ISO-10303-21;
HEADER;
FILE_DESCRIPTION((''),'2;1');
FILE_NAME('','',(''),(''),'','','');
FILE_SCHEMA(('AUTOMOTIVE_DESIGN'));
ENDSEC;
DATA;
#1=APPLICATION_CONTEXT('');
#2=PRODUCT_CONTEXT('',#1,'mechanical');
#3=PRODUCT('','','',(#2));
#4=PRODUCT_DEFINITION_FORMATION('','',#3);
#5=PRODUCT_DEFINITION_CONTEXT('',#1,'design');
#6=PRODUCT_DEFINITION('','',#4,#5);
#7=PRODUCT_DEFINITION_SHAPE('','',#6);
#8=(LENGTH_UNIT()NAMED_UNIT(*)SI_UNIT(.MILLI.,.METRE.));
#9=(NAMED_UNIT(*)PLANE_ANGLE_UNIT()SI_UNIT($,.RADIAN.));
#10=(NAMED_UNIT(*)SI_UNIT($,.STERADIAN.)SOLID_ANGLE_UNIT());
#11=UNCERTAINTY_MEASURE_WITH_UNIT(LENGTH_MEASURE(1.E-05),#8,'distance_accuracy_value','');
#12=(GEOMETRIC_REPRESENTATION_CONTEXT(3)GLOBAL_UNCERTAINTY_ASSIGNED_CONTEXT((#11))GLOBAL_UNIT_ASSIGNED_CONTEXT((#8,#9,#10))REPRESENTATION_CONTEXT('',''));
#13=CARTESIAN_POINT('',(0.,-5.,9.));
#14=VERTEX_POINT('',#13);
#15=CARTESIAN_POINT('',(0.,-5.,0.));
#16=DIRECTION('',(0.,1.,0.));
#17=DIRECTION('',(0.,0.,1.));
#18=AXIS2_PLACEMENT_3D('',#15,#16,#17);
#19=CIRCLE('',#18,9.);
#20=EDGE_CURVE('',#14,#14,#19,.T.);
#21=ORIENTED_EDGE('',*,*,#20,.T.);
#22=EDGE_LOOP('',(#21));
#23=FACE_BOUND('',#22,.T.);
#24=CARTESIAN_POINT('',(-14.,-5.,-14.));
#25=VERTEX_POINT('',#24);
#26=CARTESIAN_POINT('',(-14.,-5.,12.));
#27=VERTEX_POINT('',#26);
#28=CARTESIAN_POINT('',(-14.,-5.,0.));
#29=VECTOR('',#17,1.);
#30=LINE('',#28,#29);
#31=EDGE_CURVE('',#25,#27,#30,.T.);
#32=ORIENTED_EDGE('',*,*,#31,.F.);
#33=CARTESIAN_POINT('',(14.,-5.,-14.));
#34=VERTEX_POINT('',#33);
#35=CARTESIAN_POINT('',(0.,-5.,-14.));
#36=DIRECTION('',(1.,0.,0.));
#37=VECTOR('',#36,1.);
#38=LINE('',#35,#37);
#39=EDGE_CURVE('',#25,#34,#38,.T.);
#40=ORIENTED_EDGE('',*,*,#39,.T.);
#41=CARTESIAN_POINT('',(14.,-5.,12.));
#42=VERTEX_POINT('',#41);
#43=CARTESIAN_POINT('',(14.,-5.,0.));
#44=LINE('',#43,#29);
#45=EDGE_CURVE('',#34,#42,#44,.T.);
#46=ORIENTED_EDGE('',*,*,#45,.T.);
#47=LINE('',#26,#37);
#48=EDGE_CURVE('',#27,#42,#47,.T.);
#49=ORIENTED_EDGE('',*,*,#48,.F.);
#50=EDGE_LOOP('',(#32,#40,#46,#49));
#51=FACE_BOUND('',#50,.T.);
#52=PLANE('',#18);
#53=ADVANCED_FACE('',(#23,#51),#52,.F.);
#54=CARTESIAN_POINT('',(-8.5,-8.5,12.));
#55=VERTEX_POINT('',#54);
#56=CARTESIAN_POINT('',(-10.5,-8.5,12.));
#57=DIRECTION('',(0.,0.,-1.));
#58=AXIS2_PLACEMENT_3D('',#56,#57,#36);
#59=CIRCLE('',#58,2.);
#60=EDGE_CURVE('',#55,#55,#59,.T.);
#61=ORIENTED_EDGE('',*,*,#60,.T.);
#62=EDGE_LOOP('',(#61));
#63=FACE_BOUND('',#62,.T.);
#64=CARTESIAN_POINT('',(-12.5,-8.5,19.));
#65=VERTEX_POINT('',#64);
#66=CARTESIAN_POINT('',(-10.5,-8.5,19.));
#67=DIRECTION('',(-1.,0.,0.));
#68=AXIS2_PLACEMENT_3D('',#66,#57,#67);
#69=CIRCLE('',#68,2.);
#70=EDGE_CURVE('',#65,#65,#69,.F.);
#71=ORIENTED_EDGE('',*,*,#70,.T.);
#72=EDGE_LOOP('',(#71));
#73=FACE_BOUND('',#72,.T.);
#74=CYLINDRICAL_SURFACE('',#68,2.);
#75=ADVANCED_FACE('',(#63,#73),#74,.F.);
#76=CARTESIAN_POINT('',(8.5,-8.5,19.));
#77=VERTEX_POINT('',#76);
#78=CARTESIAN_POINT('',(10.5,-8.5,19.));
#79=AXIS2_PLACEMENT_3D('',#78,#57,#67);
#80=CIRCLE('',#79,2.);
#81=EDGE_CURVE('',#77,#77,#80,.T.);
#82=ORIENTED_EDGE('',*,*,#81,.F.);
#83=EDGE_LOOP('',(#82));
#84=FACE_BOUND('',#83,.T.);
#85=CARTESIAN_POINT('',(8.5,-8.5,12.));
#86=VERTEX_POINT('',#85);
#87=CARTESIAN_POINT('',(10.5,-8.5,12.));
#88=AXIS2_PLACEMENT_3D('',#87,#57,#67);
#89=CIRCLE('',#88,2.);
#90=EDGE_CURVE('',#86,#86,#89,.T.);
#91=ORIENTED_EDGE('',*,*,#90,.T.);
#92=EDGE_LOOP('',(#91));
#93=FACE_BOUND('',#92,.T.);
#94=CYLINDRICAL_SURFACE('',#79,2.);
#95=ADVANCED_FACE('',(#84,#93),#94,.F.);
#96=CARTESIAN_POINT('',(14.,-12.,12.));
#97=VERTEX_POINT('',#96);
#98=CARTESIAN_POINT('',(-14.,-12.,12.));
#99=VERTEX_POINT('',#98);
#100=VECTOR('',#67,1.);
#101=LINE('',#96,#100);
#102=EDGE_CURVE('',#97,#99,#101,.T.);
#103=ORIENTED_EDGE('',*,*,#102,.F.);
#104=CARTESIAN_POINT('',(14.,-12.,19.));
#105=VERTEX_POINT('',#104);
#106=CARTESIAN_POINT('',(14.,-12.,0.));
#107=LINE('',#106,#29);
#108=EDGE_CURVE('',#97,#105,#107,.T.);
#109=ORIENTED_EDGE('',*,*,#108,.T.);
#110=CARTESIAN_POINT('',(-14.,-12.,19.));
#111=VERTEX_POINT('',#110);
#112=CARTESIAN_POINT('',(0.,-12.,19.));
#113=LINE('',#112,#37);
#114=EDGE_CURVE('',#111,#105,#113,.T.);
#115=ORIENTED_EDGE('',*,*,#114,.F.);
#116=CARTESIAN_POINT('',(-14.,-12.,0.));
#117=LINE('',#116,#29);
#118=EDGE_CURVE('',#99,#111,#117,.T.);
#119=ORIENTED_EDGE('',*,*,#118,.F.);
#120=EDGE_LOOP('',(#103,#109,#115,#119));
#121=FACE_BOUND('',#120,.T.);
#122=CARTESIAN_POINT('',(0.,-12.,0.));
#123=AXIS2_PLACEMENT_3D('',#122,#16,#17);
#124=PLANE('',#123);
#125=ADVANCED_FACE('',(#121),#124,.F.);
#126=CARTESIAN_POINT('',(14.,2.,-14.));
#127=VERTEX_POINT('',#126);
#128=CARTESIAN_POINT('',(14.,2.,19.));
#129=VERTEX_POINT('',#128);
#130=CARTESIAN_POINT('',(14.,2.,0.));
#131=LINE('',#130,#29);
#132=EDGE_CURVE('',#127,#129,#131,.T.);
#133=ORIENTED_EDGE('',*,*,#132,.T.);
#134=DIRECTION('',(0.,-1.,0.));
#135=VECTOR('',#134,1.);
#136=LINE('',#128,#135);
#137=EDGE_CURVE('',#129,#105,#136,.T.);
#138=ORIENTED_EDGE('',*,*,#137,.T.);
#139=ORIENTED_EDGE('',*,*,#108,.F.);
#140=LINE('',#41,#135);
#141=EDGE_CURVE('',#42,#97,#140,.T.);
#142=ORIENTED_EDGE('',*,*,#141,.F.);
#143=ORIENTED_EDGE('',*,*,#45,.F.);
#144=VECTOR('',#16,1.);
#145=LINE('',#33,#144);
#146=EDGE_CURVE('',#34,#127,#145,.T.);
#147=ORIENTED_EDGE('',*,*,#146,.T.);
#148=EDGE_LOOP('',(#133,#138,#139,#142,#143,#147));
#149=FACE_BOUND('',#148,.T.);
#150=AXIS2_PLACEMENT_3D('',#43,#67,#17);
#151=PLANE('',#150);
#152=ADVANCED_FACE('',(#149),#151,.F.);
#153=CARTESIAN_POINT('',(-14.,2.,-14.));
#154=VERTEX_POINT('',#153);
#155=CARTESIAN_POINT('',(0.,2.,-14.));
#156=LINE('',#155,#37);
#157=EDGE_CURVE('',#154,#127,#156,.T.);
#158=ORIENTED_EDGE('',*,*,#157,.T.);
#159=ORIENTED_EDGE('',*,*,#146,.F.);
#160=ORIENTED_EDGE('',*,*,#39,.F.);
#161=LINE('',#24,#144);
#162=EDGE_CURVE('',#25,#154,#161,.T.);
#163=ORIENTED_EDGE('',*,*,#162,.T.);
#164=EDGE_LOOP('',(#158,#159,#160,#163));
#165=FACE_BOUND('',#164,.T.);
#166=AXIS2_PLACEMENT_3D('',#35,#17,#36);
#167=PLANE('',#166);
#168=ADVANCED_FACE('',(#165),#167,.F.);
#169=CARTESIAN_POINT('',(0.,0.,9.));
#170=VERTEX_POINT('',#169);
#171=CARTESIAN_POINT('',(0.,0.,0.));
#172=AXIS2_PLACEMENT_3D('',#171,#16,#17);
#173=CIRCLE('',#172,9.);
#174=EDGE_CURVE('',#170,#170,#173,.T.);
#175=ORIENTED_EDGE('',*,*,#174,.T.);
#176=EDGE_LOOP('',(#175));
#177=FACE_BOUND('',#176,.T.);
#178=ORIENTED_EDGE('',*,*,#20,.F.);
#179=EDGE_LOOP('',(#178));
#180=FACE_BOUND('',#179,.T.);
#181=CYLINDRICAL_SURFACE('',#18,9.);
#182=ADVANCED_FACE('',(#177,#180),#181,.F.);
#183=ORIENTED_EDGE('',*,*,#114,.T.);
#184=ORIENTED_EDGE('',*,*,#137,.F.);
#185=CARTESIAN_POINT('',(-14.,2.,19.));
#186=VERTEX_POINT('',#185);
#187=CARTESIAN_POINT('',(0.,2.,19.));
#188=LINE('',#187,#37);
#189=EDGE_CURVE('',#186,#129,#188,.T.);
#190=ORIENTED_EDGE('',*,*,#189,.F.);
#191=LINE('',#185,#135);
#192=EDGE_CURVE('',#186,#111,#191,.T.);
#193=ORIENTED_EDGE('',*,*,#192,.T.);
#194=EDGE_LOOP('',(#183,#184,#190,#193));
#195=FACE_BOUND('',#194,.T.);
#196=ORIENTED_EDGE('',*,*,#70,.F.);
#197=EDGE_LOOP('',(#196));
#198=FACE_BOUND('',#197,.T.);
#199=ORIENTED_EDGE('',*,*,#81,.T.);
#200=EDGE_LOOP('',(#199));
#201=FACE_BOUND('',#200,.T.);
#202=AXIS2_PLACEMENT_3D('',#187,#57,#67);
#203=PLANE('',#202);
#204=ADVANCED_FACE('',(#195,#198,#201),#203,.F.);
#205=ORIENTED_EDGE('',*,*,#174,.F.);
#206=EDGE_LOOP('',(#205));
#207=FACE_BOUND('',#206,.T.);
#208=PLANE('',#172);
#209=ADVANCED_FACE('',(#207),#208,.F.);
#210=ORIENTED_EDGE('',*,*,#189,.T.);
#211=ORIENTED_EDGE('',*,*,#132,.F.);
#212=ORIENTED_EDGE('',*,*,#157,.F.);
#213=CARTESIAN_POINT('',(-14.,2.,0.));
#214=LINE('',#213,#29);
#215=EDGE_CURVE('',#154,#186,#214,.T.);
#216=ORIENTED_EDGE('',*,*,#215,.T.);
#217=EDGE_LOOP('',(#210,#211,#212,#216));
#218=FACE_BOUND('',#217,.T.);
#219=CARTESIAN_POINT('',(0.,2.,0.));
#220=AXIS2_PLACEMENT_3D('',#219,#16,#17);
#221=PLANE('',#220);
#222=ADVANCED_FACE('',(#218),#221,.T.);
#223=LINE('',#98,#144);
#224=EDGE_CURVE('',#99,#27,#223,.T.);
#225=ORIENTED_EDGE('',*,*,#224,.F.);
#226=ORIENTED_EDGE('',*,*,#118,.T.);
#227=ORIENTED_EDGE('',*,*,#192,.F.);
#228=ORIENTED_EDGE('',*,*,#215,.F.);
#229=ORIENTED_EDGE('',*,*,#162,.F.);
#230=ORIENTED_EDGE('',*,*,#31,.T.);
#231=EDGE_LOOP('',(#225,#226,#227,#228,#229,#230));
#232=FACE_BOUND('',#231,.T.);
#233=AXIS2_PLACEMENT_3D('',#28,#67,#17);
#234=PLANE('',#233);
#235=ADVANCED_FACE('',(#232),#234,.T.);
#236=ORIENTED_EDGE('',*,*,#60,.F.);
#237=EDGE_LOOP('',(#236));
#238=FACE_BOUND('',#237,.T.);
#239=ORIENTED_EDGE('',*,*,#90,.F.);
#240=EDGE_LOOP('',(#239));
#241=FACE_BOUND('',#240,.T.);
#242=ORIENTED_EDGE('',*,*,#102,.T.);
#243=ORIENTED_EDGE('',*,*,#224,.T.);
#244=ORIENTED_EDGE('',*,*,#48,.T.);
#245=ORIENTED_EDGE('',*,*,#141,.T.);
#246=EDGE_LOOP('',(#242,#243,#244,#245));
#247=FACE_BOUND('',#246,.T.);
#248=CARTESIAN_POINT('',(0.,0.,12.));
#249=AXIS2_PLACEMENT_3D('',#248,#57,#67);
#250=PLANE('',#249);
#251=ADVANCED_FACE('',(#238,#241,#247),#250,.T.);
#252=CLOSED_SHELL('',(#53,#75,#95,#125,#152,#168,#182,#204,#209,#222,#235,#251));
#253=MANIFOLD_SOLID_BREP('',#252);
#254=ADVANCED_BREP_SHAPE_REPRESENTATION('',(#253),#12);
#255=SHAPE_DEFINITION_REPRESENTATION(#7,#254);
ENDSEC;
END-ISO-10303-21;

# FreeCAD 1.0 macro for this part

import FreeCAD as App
import Part
import Sketcher
from FreeCAD import Vector


def add_polygon(sketch, points):
    """Adds a closed chain of lines whose ends are joined by coincident constraints."""
    first, n = sketch.GeometryCount, len(points)
    for a, b in zip(points, points[1:] + points[:1]):
        sketch.addGeometry(Part.LineSegment(App.Vector(*a, 0), App.Vector(*b, 0)), False)
    for i in range(n):
        sketch.addConstraint(Sketcher.Constraint("Coincident", first + i, 2, first + (i + 1) % n, 1))

doc = App.newDocument("Part")
body = doc.addObject("PartDesign::Body", "Body")

sketch1 = body.newObject("Sketcher::SketchObject", "Sketch")
sketch1.AttachmentSupport = (doc.getObject("XZ_Plane"), [""])
sketch1.MapMode = "FlatFace"
add_polygon(sketch1, [(-14, -14), (-14, 14), (14, 14), (14, -14)])
sketch1.addGeometry(Part.Circle(Vector(0, 0, 0), Vector(0, 0, 1), 9), False)
sketch1.addConstraint([
    Sketcher.Constraint("Vertical", 0),
    Sketcher.Constraint("Horizontal", 1),
    Sketcher.Constraint("Vertical", 2),
    Sketcher.Constraint("Horizontal", 3),
    Sketcher.Constraint("Coincident", 4, 3, -1, 1),
    Sketcher.Constraint("Symmetric", 0, 2, 2, 2, -1, 1),
    Sketcher.Constraint("Equal", 3, 0),
    Sketcher.Constraint("Diameter", 4, 18.0),
    Sketcher.Constraint("DistanceX", 1, 1, 1, 2, 28.0),
])
pad1 = body.newObject("PartDesign::Pad", "Pad")
pad1.Profile = sketch1
pad1.Length = 5

sketch2 = body.newObject("Sketcher::SketchObject", "Sketch001")
sketch2.AttachmentSupport = (doc.getObject("XZ_Plane"), [""])
sketch2.MapMode = "FlatFace"
sketch2.AttachmentOffset = App.Placement(Vector(0, 0, -2), App.Rotation())
add_polygon(sketch2, [(-14, -14), (-14, 19), (14, 19), (14, -14)])
sketch2.addConstraint([
    Sketcher.Constraint("Vertical", 0),
    Sketcher.Constraint("Horizontal", 1),
    Sketcher.Constraint("Vertical", 2),
    Sketcher.Constraint("Horizontal", 3),
    Sketcher.Constraint("DistanceX", 1, 1, 1, 2, 28.0),
    Sketcher.Constraint("DistanceY", 0, 1, 0, 2, 33.0),
    Sketcher.Constraint("DistanceX", 0, 2, -1, 1, 14.0),
    Sketcher.Constraint("DistanceY", -1, 1, 0, 2, 19.0),
])
pad2 = body.newObject("PartDesign::Pad", "Pad001")
pad2.Profile = sketch2
pad2.Length = 2

sketch3 = body.newObject("Sketcher::SketchObject", "Sketch002")
sketch3.AttachmentSupport = (doc.getObject("XZ_Plane"), [""])
sketch3.MapMode = "FlatFace"
add_polygon(sketch3, [(-14, 14), (-14, 19), (14, 19), (14, 14)])
sketch3.addConstraint([
    Sketcher.Constraint("Vertical", 0),
    Sketcher.Constraint("Horizontal", 1),
    Sketcher.Constraint("Vertical", 2),
    Sketcher.Constraint("Horizontal", 3),
    Sketcher.Constraint("DistanceX", 1, 1, 1, 2, 28.0),
    Sketcher.Constraint("DistanceY", 0, 1, 0, 2, 5.0),
    Sketcher.Constraint("DistanceX", 0, 2, -1, 1, 14.0),
    Sketcher.Constraint("DistanceY", -1, 1, 0, 2, 19.0),
])
pad3 = body.newObject("PartDesign::Pad", "Pad002")
pad3.Profile = sketch3
pad3.Length = 12

sketch4 = body.newObject("Sketcher::SketchObject", "Sketch003")
sketch4.AttachmentSupport = (doc.getObject("XY_Plane"), [""])
sketch4.MapMode = "FlatFace"
sketch4.AttachmentOffset = App.Placement(Vector(0, 0, 14), App.Rotation())
sketch4.addGeometry([
    Part.Circle(Vector(10.5, -8.5, 0), Vector(0, 0, 1), 2),
    Part.Circle(Vector(-10.5, -8.5, 0), Vector(0, 0, 1), 2),
], False)
sketch4.addConstraint([
    Sketcher.Constraint("Equal", 0, 1),
    Sketcher.Constraint("Symmetric", 0, 3, 1, 3, -2),
    Sketcher.Constraint("Diameter", 0, 4.0),
    Sketcher.Constraint("DistanceX", 1, 3, 0, 3, 21.0),
    Sketcher.Constraint("DistanceY", 0, 3, -1, 1, 8.5),
])
pocket1 = body.newObject("PartDesign::Pocket", "Pocket")
pocket1.Profile = sketch4
pocket1.Type = "ThroughAll"
pocket1.Reversed = True

sketch5 = body.newObject("Sketcher::SketchObject", "Sketch004")
sketch5.AttachmentSupport = (doc.getObject("XY_Plane"), [""])
sketch5.MapMode = "FlatFace"
sketch5.AttachmentOffset = App.Placement(Vector(0, 0, 12), App.Rotation())
add_polygon(sketch5, [(14, -5), (14, -12), (-14, -12), (-14, -5)])
sketch5.addGeometry(Part.Circle(Vector(10.5, -8.5, 0), Vector(0, 0, 1), 2), False)
sketch5.addGeometry(Part.Circle(Vector(-10.5, -8.5, 0), Vector(0, 0, 1), 2), False)
sketch5.addConstraint([
    Sketcher.Constraint("Vertical", 0),
    Sketcher.Constraint("Horizontal", 1),
    Sketcher.Constraint("Vertical", 2),
    Sketcher.Constraint("Horizontal", 3),
    Sketcher.Constraint("Equal", 4, 5),
    Sketcher.Constraint("Symmetric", 4, 3, 5, 3, -2),
    Sketcher.Constraint("Diameter", 4, 4.0),
    Sketcher.Constraint("DistanceX", 1, 2, 1, 1, 28.0),
    Sketcher.Constraint("DistanceY", 0, 2, 0, 1, 7.0),
    Sketcher.Constraint("DistanceX", -1, 1, 0, 2, 14.0),
    Sketcher.Constraint("DistanceY", 0, 2, -1, 1, 12.0),
    Sketcher.Constraint("DistanceX", 5, 3, 4, 3, 21.0),
    Sketcher.Constraint("DistanceY", 4, 3, -1, 1, 8.5),
])
pad4 = body.newObject("PartDesign::Pad", "Pad003")
pad4.Profile = sketch5
pad4.Length = 2

doc.recompute()
